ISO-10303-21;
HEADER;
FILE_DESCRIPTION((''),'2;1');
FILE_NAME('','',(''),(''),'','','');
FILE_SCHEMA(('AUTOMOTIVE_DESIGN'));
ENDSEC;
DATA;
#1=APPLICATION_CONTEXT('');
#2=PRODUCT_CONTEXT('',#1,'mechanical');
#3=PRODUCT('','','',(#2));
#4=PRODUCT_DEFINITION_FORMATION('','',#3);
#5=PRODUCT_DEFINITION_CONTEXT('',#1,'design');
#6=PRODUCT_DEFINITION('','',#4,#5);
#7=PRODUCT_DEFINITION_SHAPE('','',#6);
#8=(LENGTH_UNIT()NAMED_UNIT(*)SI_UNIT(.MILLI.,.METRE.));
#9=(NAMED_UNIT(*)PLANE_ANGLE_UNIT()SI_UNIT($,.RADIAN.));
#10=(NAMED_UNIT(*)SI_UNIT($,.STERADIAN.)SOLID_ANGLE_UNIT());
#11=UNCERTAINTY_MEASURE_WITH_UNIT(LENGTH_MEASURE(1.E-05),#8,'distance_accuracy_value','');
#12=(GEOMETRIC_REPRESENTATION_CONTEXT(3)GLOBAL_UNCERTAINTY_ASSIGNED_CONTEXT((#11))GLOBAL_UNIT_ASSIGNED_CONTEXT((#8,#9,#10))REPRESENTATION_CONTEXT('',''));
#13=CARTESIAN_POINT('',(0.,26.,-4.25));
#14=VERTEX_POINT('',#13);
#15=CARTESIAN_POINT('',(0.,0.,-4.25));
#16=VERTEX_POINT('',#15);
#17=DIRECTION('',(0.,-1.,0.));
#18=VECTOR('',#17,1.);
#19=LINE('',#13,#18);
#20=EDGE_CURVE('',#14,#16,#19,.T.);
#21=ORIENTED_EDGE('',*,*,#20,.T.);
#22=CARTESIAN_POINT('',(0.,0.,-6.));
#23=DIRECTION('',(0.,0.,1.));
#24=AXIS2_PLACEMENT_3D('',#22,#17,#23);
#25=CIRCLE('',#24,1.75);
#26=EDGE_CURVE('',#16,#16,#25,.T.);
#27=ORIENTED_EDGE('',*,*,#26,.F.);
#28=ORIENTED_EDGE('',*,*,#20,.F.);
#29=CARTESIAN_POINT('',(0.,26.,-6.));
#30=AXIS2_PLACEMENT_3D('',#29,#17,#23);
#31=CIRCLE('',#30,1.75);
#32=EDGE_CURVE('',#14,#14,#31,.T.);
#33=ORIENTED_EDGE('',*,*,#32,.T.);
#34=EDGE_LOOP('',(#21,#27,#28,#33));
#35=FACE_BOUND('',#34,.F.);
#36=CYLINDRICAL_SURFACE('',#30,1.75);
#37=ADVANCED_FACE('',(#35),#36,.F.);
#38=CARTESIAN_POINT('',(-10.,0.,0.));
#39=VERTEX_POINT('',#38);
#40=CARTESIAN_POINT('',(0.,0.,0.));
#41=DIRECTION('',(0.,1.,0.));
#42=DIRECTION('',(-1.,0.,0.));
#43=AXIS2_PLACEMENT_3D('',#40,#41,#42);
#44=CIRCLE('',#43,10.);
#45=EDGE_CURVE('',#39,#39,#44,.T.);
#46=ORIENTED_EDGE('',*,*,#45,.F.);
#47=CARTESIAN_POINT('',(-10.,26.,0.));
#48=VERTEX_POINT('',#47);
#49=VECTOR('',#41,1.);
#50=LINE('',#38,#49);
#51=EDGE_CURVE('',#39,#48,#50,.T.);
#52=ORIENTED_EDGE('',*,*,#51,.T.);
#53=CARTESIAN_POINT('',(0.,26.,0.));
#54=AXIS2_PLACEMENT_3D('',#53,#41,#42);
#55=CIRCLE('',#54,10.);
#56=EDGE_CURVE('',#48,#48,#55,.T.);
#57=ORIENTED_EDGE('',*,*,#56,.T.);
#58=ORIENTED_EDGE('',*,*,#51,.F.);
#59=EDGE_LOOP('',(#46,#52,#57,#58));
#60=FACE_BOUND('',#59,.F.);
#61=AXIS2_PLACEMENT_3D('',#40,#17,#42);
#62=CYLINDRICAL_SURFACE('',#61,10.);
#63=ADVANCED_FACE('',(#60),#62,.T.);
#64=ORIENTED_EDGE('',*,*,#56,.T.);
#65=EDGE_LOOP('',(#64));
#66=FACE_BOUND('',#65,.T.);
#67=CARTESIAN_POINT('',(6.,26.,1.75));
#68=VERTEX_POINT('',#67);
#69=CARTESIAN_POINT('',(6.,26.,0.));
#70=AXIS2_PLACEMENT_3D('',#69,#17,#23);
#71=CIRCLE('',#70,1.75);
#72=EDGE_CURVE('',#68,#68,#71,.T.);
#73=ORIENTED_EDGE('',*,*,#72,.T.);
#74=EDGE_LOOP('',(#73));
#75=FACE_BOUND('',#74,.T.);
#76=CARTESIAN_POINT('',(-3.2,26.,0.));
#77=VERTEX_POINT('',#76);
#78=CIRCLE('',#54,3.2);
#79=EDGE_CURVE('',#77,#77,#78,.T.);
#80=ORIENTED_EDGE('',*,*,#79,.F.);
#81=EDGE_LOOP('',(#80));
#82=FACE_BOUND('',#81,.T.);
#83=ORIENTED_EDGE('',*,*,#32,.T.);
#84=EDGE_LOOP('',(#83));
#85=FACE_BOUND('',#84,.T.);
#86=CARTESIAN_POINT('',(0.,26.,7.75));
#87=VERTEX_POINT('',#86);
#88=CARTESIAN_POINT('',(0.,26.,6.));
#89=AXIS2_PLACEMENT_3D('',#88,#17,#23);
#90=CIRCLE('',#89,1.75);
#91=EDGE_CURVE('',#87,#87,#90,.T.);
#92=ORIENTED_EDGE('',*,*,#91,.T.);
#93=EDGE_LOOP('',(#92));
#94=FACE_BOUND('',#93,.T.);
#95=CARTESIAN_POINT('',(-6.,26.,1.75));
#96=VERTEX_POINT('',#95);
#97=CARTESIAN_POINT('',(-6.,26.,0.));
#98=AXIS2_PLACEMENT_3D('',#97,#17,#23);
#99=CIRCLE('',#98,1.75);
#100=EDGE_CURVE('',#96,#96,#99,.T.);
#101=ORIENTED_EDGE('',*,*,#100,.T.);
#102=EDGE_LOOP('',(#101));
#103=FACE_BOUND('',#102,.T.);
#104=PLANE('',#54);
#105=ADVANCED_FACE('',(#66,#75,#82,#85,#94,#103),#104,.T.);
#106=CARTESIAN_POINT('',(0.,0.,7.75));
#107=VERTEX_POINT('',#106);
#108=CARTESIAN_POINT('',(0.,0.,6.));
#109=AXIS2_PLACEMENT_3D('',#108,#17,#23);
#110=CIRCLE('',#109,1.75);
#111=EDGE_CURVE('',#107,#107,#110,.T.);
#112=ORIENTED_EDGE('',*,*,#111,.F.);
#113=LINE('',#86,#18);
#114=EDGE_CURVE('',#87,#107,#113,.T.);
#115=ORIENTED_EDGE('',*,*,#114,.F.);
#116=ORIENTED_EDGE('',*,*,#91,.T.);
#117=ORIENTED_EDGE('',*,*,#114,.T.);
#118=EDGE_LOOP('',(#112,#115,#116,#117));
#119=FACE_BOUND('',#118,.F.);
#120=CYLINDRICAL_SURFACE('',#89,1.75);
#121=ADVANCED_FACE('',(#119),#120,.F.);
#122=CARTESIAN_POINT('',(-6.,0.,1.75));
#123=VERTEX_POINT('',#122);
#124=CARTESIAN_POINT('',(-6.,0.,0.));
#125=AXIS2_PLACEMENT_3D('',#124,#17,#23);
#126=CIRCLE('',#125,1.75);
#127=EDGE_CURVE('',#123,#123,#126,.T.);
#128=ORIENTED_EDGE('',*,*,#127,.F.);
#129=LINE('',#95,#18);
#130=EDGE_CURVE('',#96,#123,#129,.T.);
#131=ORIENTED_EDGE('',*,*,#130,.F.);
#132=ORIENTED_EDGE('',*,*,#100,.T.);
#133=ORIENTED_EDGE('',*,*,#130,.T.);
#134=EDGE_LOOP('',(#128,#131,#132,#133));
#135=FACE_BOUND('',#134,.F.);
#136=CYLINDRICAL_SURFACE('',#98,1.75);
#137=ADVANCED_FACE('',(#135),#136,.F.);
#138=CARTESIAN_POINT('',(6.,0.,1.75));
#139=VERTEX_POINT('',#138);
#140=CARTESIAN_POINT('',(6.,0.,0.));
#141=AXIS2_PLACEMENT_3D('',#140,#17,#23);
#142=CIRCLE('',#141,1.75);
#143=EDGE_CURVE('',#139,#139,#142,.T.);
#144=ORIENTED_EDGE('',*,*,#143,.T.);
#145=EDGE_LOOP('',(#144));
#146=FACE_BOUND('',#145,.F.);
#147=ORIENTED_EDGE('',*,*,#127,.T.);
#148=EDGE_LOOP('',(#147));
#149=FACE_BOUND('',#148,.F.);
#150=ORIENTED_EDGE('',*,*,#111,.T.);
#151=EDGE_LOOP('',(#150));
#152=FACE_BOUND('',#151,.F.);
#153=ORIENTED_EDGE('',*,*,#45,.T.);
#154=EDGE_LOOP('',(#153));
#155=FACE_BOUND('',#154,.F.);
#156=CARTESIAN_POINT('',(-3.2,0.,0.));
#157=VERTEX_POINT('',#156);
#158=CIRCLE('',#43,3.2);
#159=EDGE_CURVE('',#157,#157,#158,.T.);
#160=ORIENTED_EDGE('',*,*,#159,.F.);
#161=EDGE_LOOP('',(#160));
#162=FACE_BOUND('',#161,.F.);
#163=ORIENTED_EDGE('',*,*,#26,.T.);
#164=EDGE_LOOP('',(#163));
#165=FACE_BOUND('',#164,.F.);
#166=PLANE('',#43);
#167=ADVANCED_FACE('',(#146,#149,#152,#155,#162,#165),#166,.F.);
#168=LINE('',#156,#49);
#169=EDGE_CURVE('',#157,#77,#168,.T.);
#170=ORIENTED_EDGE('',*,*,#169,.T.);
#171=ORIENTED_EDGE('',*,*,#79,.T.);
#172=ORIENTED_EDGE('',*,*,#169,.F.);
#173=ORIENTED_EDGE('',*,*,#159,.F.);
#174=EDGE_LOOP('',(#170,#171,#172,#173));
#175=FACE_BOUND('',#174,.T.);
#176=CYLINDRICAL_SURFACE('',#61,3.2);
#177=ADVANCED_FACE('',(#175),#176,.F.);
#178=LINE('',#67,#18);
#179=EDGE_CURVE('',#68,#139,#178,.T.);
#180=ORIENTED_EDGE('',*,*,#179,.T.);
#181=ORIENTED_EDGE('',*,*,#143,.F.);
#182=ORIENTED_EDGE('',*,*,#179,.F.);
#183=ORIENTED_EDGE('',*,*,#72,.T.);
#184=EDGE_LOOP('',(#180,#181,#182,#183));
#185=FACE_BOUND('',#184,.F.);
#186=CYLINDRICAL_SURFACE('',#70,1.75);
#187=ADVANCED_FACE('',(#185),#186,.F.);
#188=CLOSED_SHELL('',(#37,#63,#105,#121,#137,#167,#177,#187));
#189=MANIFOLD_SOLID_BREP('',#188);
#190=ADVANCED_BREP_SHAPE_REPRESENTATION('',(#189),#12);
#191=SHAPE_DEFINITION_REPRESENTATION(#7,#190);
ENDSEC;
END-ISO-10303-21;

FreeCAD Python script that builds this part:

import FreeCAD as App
import Part
import Sketcher
from FreeCAD import Vector
Q = App.Units.Quantity

doc = App.newDocument("Part")
params = doc.addObject("Spreadsheet::Sheet", "Params")
for row, (alias, value) in enumerate([
    ("sketch1_diameter", "20 mm"),
    ("sketch1_diameter2", "6.4 mm"),
    ("pad1_length", "26 mm"),
    ("sketch2_diameter", "3.5 mm"),
    ("hole_diameter", "3.5 mm"),
], start=1):
    params.set(f"A{row}", alias)
    params.set(f"B{row}", "=" + value)
    params.setAlias(f"B{row}", alias)

body = doc.addObject("PartDesign::Body", "Body")

sketch1 = doc.addObject("Sketcher::SketchObject", "Sketch")
body.addObject(sketch1)
sketch1.AttachmentSupport = (doc.XZ_Plane, [""])
sketch1.MapMode = "FlatFace"
sketch1.addGeometry(Part.Circle(Vector(0, 0, 0), Vector(0, 0, 1), 10), False)
sketch1.addGeometry(Part.Circle(Vector(0, 0, 0), Vector(0, 0, 1), 3.2), False)
sketch1.addConstraint(Sketcher.Constraint("Coincident", 0, 3, -1, 1))
sketch1.addConstraint(Sketcher.Constraint("Coincident", 1, 3, -1, 1))
sketch1.addConstraint(Sketcher.Constraint("Diameter", 0, Q("20 mm")))
sketch1.addConstraint(Sketcher.Constraint("Diameter", 1, Q("6.4 mm")))
sketch1.setExpression("Constraints[2]", "Params.sketch1_diameter")
sketch1.setExpression("Constraints[3]", "Params.sketch1_diameter2")
pad1 = doc.addObject("PartDesign::Pad", "Pad")
body.addObject(pad1)
pad1.Profile = sketch1
pad1.setExpression("Length", "Params.pad1_length")
pad1.Reversed = True

sketch2 = doc.addObject("Sketcher::SketchObject", "Sketch001")
body.addObject(sketch2)
sketch2.AttachmentSupport = (doc.XZ_Plane, [""])
sketch2.MapMode = "FlatFace"
sketch2.AttachmentOffset = App.Placement(Vector(0, 0, -26), App.Rotation())
sketch2.addGeometry(Part.Circle(Vector(-6, 0, 0), Vector(0, 0, 1), 1.8), False)
sketch2.addGeometry(Part.Circle(Vector(0, 6, 0), Vector(0, 0, 1), 1.8), False)
sketch2.addGeometry(Part.Circle(Vector(6, 0, 0), Vector(0, 0, 1), 1.8), False)
sketch2.addGeometry(Part.Circle(Vector(0, -6, 0), Vector(0, 0, 1), 1.8), False)
sketch2.addConstraint(Sketcher.Constraint("Equal", 0, 1))
sketch2.addConstraint(Sketcher.Constraint("Equal", 1, 2))
sketch2.addConstraint(Sketcher.Constraint("Equal", 2, 3))
sketch2.addConstraint(Sketcher.Constraint("Symmetric", 0, 3, 2, 3, -1, 1))
sketch2.addConstraint(Sketcher.Constraint("Symmetric", 1, 3, 3, 3, -1, 1))
sketch2.addConstraint(Sketcher.Constraint("PointOnObject", 0, 3, -1))
sketch2.addConstraint(Sketcher.Constraint("PointOnObject", 1, 3, -2))
sketch2.addConstraint(Sketcher.Constraint("Diameter", 0, Q("3.5 mm")))
sketch2.addConstraint(Sketcher.Constraint("DistanceX", 0, 3, -1, 1, Q("6 mm")))
sketch2.addConstraint(Sketcher.Constraint("DistanceY", -1, 1, 1, 3, Q("6 mm")))
sketch2.setExpression("Constraints[7]", "Params.sketch2_diameter")
doc.recompute()
hole = doc.addObject("PartDesign::Hole", "Hole")
body.addObject(hole)
hole.Profile = sketch2
hole.ThreadType = "None"
hole.setExpression("Diameter", "Params.hole_diameter")
hole.DepthType = "ThroughAll"
hole.Reversed = True

doc.recompute()
